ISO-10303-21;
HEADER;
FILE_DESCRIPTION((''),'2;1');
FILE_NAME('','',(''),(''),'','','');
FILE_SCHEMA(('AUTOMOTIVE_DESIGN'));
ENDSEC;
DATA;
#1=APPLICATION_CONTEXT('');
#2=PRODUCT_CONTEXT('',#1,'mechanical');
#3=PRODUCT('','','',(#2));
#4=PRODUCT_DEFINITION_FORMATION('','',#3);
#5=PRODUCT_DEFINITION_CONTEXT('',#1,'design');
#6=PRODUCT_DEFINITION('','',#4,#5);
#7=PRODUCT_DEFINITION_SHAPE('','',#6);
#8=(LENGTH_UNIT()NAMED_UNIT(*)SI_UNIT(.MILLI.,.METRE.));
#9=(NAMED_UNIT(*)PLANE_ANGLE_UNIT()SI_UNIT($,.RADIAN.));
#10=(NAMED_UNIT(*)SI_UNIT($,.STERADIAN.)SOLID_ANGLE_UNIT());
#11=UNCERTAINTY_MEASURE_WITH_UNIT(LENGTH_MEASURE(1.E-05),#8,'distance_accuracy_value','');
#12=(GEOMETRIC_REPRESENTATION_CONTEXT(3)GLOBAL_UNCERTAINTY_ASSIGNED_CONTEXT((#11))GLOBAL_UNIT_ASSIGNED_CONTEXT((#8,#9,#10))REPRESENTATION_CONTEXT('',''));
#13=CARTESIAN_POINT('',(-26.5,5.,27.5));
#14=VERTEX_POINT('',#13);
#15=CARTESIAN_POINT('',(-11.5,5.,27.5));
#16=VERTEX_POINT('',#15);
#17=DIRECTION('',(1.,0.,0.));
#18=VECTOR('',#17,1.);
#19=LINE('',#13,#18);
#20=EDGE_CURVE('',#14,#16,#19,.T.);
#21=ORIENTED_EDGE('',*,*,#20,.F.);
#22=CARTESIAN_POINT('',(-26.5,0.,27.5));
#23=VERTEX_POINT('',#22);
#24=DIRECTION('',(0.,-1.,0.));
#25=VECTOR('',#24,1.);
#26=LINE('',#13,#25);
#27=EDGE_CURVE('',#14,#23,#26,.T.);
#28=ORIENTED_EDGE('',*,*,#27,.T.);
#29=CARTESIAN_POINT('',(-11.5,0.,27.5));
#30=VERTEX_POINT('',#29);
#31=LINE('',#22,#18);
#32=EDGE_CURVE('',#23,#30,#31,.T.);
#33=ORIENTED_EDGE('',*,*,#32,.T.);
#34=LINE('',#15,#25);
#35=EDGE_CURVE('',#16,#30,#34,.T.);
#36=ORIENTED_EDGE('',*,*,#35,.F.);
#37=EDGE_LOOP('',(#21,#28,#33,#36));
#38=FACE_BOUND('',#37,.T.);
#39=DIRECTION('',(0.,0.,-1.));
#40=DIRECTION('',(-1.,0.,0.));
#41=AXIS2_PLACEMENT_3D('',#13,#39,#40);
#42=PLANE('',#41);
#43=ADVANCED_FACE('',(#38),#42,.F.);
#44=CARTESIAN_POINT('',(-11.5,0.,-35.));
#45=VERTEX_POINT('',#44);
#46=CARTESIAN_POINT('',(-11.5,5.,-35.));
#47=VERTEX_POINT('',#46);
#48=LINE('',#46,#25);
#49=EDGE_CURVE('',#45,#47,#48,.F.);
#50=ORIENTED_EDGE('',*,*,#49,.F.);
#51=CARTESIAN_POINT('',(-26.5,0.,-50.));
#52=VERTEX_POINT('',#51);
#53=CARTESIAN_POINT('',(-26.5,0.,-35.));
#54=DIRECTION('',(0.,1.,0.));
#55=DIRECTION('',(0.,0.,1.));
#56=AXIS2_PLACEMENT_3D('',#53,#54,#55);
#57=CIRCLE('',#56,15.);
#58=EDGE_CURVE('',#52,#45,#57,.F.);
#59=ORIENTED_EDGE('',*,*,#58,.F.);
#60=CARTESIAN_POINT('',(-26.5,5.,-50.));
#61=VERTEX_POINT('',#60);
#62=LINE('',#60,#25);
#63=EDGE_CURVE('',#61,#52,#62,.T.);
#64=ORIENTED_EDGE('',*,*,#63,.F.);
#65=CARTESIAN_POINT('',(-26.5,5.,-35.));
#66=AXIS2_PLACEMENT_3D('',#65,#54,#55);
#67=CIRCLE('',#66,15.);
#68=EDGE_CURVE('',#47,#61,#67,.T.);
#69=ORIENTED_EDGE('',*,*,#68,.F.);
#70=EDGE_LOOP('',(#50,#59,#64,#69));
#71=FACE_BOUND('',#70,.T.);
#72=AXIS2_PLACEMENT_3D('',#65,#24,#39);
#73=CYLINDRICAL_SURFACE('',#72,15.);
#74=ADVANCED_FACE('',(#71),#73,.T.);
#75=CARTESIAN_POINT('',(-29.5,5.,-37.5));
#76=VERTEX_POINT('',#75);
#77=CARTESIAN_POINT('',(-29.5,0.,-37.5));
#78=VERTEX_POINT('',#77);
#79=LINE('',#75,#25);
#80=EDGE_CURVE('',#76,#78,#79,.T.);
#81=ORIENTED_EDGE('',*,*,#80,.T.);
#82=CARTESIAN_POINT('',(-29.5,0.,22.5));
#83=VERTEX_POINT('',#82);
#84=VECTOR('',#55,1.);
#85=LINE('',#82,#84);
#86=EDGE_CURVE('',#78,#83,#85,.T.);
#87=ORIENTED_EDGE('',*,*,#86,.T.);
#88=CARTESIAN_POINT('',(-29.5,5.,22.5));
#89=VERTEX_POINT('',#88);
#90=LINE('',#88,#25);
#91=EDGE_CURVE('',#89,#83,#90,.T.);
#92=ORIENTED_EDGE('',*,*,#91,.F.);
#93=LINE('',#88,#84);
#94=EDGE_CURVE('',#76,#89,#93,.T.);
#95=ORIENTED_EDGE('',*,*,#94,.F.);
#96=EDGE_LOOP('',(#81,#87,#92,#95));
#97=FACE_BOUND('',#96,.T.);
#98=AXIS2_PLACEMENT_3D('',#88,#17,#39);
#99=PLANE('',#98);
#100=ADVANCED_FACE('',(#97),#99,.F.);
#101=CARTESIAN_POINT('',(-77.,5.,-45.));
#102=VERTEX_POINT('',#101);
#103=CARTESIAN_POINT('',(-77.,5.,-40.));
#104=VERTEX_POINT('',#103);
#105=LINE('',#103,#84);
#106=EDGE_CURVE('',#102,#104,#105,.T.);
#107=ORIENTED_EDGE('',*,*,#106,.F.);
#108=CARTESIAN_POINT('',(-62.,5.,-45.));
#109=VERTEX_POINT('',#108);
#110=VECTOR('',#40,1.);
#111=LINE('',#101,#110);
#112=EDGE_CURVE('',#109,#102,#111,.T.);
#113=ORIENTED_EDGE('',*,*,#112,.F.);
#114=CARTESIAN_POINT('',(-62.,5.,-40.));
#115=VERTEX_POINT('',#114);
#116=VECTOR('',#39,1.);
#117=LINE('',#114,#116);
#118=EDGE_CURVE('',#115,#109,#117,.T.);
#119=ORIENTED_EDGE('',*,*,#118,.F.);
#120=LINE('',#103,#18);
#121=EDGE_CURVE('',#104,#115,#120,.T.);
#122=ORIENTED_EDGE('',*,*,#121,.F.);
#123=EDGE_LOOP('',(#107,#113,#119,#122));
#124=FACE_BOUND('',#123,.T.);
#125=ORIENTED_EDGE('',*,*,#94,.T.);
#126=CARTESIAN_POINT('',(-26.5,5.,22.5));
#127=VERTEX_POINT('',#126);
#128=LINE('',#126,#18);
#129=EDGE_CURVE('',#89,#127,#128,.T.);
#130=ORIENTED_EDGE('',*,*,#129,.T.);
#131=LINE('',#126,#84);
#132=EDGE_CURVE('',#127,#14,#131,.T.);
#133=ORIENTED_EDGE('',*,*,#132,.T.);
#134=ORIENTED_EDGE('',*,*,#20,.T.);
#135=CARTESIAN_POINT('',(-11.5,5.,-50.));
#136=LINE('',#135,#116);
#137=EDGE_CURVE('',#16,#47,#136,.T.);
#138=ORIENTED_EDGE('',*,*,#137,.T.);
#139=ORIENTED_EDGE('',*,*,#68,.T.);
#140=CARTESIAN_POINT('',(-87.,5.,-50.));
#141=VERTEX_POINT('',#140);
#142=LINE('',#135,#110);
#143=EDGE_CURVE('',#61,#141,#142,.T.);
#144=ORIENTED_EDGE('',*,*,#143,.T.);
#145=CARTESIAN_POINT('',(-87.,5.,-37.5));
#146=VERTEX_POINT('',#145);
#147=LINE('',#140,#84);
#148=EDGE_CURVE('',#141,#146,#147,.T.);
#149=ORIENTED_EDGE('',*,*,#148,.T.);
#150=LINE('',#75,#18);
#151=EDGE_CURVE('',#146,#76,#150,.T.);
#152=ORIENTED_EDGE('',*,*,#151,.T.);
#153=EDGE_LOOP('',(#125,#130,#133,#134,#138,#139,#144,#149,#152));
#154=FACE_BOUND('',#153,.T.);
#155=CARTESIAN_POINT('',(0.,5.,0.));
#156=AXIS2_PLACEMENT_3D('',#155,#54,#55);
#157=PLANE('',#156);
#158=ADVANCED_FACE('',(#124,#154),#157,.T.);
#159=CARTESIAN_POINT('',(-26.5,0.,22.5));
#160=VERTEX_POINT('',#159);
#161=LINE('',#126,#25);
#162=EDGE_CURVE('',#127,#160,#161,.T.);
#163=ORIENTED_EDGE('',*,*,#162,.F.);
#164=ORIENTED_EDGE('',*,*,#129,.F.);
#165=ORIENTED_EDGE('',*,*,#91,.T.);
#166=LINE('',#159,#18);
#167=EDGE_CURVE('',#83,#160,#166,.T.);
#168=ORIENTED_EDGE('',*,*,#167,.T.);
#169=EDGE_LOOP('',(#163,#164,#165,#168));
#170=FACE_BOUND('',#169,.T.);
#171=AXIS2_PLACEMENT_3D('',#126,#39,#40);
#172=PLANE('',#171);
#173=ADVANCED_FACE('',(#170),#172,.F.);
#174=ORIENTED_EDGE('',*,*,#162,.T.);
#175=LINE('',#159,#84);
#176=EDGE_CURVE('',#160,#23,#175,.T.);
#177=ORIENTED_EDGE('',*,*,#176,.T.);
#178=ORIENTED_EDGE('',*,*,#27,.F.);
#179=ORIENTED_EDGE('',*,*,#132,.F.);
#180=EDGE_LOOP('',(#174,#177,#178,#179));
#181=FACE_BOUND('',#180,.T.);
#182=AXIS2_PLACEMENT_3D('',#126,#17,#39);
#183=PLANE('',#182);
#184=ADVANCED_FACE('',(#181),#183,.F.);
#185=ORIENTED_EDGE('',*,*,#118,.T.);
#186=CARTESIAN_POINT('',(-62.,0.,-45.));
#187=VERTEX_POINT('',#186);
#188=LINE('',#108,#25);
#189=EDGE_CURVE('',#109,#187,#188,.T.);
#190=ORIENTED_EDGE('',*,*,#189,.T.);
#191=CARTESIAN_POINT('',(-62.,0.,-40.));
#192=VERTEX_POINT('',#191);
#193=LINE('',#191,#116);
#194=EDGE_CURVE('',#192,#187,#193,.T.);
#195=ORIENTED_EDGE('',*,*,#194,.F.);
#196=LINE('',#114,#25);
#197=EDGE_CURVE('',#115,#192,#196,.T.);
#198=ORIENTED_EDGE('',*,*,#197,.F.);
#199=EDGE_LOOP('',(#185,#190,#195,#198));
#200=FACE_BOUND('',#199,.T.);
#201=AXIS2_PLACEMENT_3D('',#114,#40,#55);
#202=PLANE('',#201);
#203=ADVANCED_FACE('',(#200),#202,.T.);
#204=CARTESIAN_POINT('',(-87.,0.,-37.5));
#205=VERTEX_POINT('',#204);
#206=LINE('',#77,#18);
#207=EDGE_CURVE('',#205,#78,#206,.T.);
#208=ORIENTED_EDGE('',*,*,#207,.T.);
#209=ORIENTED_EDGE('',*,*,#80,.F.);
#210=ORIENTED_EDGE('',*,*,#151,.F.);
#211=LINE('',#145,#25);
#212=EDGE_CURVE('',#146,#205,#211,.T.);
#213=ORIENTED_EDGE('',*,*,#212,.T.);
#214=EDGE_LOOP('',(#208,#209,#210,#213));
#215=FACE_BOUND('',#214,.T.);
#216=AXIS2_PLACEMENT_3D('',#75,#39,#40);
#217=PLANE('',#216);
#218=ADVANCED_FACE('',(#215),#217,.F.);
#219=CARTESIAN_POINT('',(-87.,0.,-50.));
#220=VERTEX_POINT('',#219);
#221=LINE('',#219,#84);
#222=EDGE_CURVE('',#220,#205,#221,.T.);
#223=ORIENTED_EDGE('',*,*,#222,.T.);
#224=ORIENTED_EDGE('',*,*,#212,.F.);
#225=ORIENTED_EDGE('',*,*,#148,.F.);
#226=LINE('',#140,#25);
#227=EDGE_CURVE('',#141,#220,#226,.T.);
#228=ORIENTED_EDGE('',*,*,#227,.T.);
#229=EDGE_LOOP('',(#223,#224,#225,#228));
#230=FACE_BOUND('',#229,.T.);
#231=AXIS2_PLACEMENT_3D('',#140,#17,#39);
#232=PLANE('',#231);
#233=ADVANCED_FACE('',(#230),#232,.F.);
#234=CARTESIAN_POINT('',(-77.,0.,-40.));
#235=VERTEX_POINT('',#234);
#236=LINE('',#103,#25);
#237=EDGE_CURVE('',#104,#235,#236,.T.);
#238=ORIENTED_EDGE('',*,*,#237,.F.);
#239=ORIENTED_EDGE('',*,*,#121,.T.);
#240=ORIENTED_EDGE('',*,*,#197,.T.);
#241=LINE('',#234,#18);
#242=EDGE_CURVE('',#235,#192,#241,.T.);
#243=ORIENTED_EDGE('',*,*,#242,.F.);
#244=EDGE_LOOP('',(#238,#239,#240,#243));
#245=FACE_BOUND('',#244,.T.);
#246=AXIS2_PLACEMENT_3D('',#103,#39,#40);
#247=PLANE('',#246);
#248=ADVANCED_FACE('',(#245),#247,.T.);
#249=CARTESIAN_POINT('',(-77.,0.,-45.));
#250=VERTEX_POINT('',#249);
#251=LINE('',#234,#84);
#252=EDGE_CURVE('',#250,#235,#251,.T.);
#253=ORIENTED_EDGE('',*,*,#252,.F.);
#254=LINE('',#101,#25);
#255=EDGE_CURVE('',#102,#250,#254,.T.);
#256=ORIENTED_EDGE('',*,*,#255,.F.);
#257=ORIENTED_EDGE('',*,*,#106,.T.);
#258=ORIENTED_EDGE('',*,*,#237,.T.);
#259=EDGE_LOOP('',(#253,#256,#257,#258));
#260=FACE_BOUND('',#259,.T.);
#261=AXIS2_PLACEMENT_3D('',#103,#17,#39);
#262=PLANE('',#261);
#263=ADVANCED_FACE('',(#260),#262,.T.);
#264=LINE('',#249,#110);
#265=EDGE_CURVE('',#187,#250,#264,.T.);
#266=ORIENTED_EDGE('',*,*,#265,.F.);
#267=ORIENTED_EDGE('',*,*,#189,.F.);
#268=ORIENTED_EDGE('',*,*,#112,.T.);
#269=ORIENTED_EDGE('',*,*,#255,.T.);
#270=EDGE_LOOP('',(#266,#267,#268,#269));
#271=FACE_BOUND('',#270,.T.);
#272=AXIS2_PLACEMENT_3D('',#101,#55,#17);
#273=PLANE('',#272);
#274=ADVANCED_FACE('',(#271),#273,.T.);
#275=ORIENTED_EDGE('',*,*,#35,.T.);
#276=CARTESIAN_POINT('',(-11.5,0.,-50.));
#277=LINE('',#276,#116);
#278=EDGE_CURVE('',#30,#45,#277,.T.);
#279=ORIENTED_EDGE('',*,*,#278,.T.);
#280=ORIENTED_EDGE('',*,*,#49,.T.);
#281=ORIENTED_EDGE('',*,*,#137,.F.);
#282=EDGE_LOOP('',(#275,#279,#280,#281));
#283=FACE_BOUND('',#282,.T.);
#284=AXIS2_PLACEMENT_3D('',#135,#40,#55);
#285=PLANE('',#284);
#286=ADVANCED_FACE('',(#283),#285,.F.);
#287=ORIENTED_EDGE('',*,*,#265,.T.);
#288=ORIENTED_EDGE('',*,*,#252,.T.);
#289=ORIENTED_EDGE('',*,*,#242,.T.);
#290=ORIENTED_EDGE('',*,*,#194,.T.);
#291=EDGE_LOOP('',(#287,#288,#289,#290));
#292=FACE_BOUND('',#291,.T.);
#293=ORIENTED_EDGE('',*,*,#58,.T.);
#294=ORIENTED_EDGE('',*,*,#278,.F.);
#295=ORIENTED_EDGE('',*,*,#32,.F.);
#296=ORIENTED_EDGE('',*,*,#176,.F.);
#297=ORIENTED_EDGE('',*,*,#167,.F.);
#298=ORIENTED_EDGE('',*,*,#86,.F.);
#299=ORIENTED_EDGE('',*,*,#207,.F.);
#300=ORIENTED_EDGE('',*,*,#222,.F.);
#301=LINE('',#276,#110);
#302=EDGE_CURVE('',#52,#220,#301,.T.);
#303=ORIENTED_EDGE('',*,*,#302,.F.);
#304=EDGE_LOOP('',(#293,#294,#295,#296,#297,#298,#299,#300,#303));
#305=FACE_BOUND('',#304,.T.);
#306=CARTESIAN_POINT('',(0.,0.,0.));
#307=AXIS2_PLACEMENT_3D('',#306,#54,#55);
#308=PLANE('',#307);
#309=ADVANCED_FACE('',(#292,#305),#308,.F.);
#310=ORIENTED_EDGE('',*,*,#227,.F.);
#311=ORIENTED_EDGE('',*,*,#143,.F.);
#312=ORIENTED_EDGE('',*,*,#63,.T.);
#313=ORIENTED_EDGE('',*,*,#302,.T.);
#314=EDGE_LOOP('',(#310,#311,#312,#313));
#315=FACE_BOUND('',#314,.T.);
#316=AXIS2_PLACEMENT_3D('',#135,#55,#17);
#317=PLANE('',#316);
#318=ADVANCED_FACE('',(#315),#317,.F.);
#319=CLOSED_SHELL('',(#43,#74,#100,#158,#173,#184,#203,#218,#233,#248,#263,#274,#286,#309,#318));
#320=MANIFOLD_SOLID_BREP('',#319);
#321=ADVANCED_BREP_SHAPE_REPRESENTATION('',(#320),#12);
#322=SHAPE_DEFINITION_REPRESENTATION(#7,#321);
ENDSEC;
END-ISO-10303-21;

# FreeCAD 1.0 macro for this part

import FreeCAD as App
import Part
import Sketcher


def edges_at(feature, points):
    """Names of the edges that pass closest to the given points."""
    edges = feature.Shape.Edges
    near = lambda p: min(range(len(edges)), key=lambda i: edges[i].distToShape(Part.Vertex(*p))[0])
    return sorted({f"Edge{near(p) + 1}" for p in points})


def add_polygon(sketch, points):
    """Adds a closed chain of lines whose ends are joined by coincident constraints."""
    first, n = sketch.GeometryCount, len(points)
    for a, b in zip(points, points[1:] + points[:1]):
        sketch.addGeometry(Part.LineSegment(App.Vector(*a, 0), App.Vector(*b, 0)), False)
    for i in range(n):
        sketch.addConstraint(Sketcher.Constraint("Coincident", first + i, 2, first + (i + 1) % n, 1))

doc = App.newDocument("Part")
body = doc.addObject("PartDesign::Body", "Body")

# Sketch on XZ plane
sketch1 = doc.addObject("Sketcher::SketchObject", "Sketch")
body.addObject(sketch1)
sketch1.AttachmentSupport = (doc.XZ_Plane, [""])
sketch1.MapMode = "FlatFace"
add_polygon(sketch1, [(-29.5, 22.5), (-26.5, 22.5), (-26.5, 27.5), (-11.5, 27.5), (-11.5, -50), (-87, -50), (-87, -37.5), (-29.5, -37.5)])  # lines 0-7
add_polygon(sketch1, [(-77, -40), (-77, -45), (-62, -45), (-62, -40)])  # lines 8-11
sketch1.addConstraint(Sketcher.Constraint("Horizontal", 0))
sketch1.addConstraint(Sketcher.Constraint("Vertical", 1))
sketch1.addConstraint(Sketcher.Constraint("Horizontal", 2))
sketch1.addConstraint(Sketcher.Constraint("Vertical", 3))
sketch1.addConstraint(Sketcher.Constraint("Horizontal", 4))
sketch1.addConstraint(Sketcher.Constraint("Vertical", 5))
sketch1.addConstraint(Sketcher.Constraint("Horizontal", 6))
sketch1.addConstraint(Sketcher.Constraint("Vertical", 7))
sketch1.addConstraint(Sketcher.Constraint("Vertical", 8))
sketch1.addConstraint(Sketcher.Constraint("Horizontal", 9))
sketch1.addConstraint(Sketcher.Constraint("Vertical", 10))
sketch1.addConstraint(Sketcher.Constraint("Horizontal", 11))
sketch1.addConstraint(Sketcher.Constraint("Equal", 2, 9))
sketch1.addConstraint(Sketcher.Constraint("Equal", 1, 8))
sketch1.addConstraint(Sketcher.Constraint("DistanceX", 0, 1, 0, 2, 3.0))
sketch1.addConstraint(Sketcher.Constraint("DistanceX", 2, 1, 2, 2, 15.0))
sketch1.addConstraint(Sketcher.Constraint("DistanceY", 1, 1, 1, 2, 5.0))
sketch1.addConstraint(Sketcher.Constraint("DistanceY", 7, 1, 7, 2, 60.0))
sketch1.addConstraint(Sketcher.Constraint("DistanceX", 4, 2, 4, 1, 75.5))
sketch1.addConstraint(Sketcher.Constraint("DistanceY", 3, 2, 3, 1, 77.5))
sketch1.addConstraint(Sketcher.Constraint("DistanceY", 3, 2, -1, 1, 50.0))
sketch1.addConstraint(Sketcher.Constraint("DistanceX", 4, 2, -1, 1, 87.0))
sketch1.addConstraint(Sketcher.Constraint("DistanceX", 8, 2, -1, 1, 77.0))
sketch1.addConstraint(Sketcher.Constraint("DistanceY", 8, 2, -1, 1, 45.0))
pad1 = doc.addObject("PartDesign::Pad", "Pad")
body.addObject(pad1)
pad1.Profile = sketch1
pad1.Length = 5
pad1.Reversed = True
doc.recompute()

fillet = doc.addObject("PartDesign::Fillet", "Fillet")
body.addObject(fillet)
fillet.Base = (pad1, edges_at(pad1, [(-11.5, 2.5, -50)]))
fillet.Radius = 15

doc.recompute()
